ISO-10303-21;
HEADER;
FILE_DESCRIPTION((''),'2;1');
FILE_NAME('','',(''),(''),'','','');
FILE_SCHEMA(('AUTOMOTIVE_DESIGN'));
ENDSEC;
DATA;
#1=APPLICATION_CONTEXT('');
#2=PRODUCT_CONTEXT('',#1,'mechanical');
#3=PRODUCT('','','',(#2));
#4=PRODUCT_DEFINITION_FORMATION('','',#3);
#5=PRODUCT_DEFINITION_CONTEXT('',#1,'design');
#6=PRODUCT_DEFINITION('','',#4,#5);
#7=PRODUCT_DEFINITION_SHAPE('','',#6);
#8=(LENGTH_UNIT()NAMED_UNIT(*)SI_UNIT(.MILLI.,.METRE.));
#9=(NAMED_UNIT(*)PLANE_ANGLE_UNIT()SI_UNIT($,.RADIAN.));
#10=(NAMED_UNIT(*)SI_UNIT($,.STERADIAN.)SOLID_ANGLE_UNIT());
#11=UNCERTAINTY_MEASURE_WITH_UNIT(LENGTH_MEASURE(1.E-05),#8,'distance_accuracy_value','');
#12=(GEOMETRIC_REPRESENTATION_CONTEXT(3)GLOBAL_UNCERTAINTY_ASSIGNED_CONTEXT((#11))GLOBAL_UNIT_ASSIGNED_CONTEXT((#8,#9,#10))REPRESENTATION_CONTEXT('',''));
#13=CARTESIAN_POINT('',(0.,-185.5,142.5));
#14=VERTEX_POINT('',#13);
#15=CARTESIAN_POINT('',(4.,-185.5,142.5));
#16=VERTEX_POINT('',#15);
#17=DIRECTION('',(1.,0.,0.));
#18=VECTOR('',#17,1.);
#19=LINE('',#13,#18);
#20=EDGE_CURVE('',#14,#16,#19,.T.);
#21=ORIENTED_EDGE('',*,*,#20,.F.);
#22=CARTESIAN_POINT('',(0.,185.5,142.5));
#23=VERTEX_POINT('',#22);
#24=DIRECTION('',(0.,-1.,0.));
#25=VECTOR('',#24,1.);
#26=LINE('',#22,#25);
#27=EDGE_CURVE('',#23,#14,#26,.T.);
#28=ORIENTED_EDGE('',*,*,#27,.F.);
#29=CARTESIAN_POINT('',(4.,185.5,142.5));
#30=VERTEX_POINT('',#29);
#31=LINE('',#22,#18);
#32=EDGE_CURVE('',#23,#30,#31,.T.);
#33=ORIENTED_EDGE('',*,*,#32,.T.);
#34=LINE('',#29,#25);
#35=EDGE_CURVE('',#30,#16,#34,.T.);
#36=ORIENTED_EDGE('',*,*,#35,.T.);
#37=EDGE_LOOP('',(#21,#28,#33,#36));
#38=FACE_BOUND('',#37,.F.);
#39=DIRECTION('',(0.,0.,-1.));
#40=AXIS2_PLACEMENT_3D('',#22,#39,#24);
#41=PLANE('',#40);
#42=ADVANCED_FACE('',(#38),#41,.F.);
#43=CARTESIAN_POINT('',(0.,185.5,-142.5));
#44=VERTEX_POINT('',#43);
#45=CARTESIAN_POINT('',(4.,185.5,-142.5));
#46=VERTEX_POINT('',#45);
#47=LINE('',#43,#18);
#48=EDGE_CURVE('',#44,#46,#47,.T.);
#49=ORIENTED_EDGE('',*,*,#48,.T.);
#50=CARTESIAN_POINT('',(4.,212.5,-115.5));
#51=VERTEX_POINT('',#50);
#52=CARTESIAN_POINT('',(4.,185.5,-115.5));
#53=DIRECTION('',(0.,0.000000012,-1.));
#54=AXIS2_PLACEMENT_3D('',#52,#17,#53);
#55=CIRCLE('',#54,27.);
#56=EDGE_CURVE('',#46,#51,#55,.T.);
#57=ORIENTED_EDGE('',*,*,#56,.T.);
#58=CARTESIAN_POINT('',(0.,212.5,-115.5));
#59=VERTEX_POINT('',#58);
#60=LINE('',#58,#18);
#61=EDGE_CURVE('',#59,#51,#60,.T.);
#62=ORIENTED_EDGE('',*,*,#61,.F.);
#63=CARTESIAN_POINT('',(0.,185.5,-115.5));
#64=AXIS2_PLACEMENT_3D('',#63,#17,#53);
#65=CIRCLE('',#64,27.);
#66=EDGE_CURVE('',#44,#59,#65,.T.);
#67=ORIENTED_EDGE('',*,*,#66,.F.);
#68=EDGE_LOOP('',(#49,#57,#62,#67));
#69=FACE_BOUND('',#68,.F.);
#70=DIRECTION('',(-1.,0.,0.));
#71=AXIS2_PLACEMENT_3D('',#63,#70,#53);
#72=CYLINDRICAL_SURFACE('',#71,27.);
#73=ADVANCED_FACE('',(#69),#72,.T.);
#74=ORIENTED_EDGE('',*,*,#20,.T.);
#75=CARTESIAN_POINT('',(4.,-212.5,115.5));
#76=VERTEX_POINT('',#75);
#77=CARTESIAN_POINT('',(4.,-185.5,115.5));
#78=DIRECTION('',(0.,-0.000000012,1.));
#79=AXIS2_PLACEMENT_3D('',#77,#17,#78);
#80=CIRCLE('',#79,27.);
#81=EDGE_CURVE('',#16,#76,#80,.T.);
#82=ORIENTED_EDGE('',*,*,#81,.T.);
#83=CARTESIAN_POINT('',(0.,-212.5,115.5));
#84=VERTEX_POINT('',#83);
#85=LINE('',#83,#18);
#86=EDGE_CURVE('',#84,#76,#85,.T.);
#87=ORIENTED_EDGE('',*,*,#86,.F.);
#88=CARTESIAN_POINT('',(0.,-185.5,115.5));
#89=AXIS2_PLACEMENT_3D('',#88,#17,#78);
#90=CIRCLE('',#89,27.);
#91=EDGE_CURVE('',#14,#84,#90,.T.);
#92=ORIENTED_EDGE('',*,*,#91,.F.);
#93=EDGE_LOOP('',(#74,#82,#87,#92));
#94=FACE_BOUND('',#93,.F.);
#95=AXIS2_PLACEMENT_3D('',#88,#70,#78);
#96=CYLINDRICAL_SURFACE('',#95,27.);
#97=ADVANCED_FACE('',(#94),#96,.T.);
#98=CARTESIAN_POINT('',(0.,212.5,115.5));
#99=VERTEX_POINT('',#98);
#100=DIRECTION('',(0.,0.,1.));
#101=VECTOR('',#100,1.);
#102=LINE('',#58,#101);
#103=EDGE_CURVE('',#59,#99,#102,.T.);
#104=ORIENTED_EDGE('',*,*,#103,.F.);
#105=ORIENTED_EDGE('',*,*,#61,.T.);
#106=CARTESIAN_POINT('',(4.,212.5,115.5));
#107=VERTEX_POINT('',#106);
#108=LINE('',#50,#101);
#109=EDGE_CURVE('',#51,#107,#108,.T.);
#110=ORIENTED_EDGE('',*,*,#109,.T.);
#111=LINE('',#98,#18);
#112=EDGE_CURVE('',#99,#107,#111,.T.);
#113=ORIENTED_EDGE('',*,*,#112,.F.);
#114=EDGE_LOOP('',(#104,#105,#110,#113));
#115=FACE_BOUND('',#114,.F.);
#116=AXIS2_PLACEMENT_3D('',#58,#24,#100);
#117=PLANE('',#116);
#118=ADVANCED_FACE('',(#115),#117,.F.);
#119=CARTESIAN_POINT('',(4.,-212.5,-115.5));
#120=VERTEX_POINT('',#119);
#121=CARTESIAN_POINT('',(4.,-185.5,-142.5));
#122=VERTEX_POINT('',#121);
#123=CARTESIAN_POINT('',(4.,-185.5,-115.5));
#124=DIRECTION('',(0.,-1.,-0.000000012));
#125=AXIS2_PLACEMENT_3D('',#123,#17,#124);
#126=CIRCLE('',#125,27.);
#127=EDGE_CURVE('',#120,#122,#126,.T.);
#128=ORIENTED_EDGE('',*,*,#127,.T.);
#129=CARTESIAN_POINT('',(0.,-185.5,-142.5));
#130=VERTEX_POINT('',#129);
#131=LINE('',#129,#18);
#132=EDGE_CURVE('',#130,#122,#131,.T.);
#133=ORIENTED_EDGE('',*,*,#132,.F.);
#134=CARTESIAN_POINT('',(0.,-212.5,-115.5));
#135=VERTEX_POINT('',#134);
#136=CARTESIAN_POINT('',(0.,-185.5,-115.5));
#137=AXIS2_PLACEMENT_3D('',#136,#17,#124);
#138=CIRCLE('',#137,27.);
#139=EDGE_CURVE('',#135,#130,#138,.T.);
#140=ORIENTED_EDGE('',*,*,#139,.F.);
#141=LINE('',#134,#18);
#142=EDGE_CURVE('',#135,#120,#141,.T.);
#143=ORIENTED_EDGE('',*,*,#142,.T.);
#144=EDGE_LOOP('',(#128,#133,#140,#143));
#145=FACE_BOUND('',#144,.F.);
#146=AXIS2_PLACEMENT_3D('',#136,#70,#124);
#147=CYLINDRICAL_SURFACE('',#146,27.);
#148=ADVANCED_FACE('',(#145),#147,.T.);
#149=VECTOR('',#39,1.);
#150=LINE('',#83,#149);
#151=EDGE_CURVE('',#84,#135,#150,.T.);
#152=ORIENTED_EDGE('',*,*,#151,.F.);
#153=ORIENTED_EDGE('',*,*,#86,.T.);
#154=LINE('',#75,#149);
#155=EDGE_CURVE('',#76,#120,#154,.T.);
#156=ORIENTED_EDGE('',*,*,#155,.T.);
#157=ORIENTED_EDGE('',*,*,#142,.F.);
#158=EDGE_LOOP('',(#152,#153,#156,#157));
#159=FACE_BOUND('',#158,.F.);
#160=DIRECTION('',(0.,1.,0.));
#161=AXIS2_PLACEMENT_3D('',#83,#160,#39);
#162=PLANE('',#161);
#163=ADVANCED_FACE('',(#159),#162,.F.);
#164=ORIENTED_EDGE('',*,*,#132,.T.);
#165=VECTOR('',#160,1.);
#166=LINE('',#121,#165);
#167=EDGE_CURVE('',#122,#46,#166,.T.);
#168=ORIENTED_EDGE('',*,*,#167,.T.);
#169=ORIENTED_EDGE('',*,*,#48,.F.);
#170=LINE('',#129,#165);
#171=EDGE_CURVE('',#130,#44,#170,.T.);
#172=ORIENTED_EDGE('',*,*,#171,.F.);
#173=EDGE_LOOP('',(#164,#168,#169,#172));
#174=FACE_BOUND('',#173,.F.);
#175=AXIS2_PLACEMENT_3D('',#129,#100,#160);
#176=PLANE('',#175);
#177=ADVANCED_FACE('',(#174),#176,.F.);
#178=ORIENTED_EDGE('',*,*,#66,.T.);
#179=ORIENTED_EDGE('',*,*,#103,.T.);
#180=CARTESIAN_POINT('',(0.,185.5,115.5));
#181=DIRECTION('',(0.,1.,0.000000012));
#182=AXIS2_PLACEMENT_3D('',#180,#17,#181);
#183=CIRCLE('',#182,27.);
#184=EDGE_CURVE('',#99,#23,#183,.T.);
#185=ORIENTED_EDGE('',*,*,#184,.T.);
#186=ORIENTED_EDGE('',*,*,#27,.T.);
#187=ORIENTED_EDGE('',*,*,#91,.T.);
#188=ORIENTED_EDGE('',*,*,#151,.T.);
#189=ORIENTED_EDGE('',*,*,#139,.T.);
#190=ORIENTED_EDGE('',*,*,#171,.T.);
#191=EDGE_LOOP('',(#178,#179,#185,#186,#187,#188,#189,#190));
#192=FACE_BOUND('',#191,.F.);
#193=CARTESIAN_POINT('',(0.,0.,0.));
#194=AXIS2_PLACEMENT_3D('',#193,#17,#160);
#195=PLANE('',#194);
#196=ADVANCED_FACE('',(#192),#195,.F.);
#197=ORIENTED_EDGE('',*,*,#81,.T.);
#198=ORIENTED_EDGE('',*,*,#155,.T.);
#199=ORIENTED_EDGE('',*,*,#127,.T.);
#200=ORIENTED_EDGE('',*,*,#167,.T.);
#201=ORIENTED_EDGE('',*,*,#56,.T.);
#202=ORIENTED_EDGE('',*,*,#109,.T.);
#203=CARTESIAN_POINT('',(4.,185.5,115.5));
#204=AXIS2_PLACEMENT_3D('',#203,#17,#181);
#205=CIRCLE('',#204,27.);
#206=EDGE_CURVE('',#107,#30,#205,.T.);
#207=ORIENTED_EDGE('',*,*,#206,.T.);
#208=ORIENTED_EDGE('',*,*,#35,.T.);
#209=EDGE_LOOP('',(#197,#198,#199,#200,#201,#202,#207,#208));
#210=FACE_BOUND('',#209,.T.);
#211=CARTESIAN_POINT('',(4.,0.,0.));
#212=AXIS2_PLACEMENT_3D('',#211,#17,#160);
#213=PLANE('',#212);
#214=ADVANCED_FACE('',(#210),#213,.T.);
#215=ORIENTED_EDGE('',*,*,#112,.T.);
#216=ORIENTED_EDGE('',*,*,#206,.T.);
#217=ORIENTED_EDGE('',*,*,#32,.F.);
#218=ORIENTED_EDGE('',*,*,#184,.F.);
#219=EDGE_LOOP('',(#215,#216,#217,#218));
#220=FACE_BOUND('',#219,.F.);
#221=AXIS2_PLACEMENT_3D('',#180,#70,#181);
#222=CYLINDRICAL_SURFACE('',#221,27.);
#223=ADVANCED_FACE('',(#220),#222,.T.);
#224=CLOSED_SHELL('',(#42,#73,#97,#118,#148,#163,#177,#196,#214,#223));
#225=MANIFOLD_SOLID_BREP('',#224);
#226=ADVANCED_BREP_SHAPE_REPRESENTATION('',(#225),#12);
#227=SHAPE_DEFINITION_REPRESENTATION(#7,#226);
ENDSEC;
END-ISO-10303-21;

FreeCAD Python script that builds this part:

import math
import FreeCAD as App
import Part
import Sketcher

V = App.Vector

doc = App.newDocument("Part")
body = doc.addObject("PartDesign::Body", "Body")

sketch1 = doc.addObject("Sketcher::SketchObject", "Sketch")
body.addObject(sketch1)
sketch1.AttachmentSupport = (doc.YZ_Plane, [""])
sketch1.MapMode = "FlatFace"
sketch1.addGeometry(Part.LineSegment(V(-212, 116, 0), V(-212, -116, 0)), False)
sketch1.addGeometry(Part.ArcOfCircle(Part.Circle(V(-185, -115, 0), V(0, 0, 1), 27), math.radians(-180), math.radians(-90)), False)
sketch1.addGeometry(Part.LineSegment(V(-186, -142, 0), V(186, -142, 0)), False)
sketch1.addGeometry(Part.ArcOfCircle(Part.Circle(V(185, -115, 0), V(0, 0, 1), 27), math.radians(-90), math.radians(0)), False)
sketch1.addGeometry(Part.LineSegment(V(212, -116, 0), V(212, 116, 0)), False)
sketch1.addGeometry(Part.ArcOfCircle(Part.Circle(V(185, 115, 0), V(0, 0, 1), 27), math.radians(0), math.radians(90)), False)
sketch1.addGeometry(Part.LineSegment(V(186, 142, 0), V(-186, 142, 0)), False)
sketch1.addGeometry(Part.ArcOfCircle(Part.Circle(V(-185, 115, 0), V(0, 0, 1), 27), math.radians(90), math.radians(180)), False)
sketch1.addConstraint(Sketcher.Constraint("Tangent", 0, 2, 1, 1))
sketch1.addConstraint(Sketcher.Constraint("Tangent", 1, 2, 2, 1))
sketch1.addConstraint(Sketcher.Constraint("Tangent", 2, 2, 3, 1))
sketch1.addConstraint(Sketcher.Constraint("Tangent", 3, 2, 4, 1))
sketch1.addConstraint(Sketcher.Constraint("Tangent", 4, 2, 5, 1))
sketch1.addConstraint(Sketcher.Constraint("Tangent", 5, 2, 6, 1))
sketch1.addConstraint(Sketcher.Constraint("Tangent", 6, 2, 7, 1))
sketch1.addConstraint(Sketcher.Constraint("Tangent", 7, 2, 0, 1))
sketch1.addConstraint(Sketcher.Constraint("Vertical", 0))
sketch1.addConstraint(Sketcher.Constraint("Horizontal", 2))
sketch1.addConstraint(Sketcher.Constraint("Vertical", 4))
sketch1.addConstraint(Sketcher.Constraint("Horizontal", 6))
sketch1.addConstraint(Sketcher.Constraint("Equal", 1, 3))
sketch1.addConstraint(Sketcher.Constraint("Equal", 3, 5))
sketch1.addConstraint(Sketcher.Constraint("Equal", 5, 7))
sketch1.addConstraint(Sketcher.Constraint("Symmetric", 1, 3, 5, 3, -1, 1))
sketch1.addConstraint(Sketcher.Constraint("Radius", 1, 27.0))
sketch1.addConstraint(Sketcher.Constraint("DistanceX", 2, 1, 2, 2, 371.0))
sketch1.addConstraint(Sketcher.Constraint("DistanceY", 0, 2, 0, 1, 231.0))
pad1 = doc.addObject("PartDesign::Pad", "Pad")
body.addObject(pad1)
pad1.Profile = sketch1
pad1.Length = 4

doc.recompute()
